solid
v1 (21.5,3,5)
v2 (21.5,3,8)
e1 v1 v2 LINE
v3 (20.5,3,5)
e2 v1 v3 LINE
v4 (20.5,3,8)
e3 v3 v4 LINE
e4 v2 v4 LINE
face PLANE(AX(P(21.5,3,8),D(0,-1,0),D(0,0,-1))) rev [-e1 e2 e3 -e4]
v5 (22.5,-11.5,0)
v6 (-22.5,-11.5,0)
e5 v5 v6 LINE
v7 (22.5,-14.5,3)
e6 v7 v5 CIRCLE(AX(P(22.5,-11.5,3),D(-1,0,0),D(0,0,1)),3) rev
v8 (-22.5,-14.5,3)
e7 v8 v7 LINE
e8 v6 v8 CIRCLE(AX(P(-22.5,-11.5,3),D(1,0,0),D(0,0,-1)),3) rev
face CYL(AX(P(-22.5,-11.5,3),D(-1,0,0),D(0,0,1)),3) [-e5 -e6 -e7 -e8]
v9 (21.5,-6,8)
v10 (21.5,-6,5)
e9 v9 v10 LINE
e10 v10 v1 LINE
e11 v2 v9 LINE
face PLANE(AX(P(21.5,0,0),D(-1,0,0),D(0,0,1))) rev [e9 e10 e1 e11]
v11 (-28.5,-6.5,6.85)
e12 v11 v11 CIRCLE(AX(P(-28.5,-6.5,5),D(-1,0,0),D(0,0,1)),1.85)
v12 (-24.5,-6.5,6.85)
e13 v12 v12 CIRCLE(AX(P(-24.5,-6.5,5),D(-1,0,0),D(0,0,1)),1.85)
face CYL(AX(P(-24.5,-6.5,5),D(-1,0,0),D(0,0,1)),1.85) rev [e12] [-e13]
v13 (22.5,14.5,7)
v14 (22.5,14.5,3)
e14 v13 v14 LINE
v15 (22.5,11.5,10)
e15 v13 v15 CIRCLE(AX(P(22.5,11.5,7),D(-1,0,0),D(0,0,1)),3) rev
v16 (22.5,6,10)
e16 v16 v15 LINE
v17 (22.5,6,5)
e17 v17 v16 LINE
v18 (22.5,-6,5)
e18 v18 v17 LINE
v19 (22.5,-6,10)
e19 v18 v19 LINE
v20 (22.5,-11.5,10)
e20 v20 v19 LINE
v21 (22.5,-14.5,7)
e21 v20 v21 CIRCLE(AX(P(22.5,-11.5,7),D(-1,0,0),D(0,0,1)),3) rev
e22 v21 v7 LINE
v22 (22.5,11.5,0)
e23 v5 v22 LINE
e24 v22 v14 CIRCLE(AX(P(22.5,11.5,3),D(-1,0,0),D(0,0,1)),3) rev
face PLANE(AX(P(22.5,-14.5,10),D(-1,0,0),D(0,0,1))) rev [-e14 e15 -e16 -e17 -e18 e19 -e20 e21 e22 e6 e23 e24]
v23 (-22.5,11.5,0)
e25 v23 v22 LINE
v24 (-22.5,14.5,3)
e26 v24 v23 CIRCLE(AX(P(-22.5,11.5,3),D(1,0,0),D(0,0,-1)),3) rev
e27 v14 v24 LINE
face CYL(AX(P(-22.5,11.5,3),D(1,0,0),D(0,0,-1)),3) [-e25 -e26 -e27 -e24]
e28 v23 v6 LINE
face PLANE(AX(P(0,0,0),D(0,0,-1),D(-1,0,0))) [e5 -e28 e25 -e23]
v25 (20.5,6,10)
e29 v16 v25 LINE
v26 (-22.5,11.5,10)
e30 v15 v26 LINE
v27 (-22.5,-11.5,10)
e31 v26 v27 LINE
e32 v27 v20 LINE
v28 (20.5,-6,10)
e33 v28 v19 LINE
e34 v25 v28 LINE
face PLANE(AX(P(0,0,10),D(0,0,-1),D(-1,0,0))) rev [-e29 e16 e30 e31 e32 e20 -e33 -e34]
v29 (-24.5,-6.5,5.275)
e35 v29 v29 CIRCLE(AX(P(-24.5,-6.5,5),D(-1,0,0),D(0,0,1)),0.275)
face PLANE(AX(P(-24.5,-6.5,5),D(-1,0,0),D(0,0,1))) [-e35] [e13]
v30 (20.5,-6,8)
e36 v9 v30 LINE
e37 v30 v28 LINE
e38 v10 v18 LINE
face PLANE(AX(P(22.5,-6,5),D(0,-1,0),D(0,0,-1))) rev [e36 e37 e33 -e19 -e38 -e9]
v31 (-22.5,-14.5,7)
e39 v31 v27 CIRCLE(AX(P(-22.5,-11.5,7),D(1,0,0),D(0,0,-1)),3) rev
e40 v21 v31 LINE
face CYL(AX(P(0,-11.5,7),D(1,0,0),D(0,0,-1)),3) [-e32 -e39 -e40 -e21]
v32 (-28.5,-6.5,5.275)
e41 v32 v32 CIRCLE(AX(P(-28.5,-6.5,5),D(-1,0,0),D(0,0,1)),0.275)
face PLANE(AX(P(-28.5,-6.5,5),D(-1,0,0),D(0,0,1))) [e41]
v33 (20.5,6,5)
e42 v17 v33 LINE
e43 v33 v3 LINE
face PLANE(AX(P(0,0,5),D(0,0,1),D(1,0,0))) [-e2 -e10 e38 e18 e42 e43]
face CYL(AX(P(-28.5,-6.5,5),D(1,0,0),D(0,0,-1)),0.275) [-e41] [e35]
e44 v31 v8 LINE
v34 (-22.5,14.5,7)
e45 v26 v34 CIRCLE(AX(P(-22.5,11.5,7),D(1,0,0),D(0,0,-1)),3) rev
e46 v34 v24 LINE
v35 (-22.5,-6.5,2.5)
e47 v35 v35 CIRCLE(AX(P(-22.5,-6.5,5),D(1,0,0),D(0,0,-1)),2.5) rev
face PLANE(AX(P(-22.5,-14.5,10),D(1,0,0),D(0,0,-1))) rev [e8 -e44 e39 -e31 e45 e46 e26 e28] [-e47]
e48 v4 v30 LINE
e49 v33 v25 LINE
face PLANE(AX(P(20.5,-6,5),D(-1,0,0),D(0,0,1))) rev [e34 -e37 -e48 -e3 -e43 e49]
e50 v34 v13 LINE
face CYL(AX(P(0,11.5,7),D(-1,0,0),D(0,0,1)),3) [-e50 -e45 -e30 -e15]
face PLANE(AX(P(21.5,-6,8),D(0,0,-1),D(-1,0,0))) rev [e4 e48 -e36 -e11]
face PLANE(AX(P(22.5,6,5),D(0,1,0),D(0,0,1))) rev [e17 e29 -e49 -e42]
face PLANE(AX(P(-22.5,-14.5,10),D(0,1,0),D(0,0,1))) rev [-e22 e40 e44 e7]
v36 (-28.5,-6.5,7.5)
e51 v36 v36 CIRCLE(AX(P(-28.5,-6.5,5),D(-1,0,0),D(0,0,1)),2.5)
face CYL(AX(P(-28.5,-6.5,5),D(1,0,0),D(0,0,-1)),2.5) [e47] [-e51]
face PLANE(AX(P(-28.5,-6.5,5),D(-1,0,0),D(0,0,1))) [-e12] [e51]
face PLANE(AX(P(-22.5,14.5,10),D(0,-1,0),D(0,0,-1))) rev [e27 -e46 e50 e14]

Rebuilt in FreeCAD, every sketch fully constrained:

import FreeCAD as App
import Part
import Sketcher

V = App.Vector
Q = App.Units.Quantity


def edges_at(feature, points):
    """Names of the edges that pass closest to the given points."""
    edges = feature.Shape.Edges
    near = lambda p: min(range(len(edges)), key=lambda i: edges[i].distToShape(Part.Vertex(*p))[0])
    return sorted({f"Edge{near(p) + 1}" for p in points})

doc = App.newDocument("Part")
body = doc.addObject("PartDesign::Body", "Body")

# Sketch on XY plane
sketch1 = body.newObject("Sketcher::SketchObject", "Sketch")
sketch1.AttachmentSupport = (doc.getObject("XY_Plane"), [""])
sketch1.MapMode = "FlatFace"
sketch1.addGeometry(Part.LineSegment(V(-22, 14, 0), V(-22, -14, 0)), False)
sketch1.addGeometry(Part.LineSegment(V(-22, -14, 0), V(22, -14, 0)), False)
sketch1.addGeometry(Part.LineSegment(V(22, -14, 0), V(22, 14, 0)), False)
sketch1.addGeometry(Part.LineSegment(V(22, 14, 0), V(-22, 14, 0)), False)
sketch1.addConstraint(Sketcher.Constraint("Coincident", 0, 2, 1, 1))
sketch1.addConstraint(Sketcher.Constraint("Coincident", 1, 2, 2, 1))
sketch1.addConstraint(Sketcher.Constraint("Coincident", 2, 2, 3, 1))
sketch1.addConstraint(Sketcher.Constraint("Coincident", 3, 2, 0, 1))
sketch1.addConstraint(Sketcher.Constraint("Vertical", 0))
sketch1.addConstraint(Sketcher.Constraint("Horizontal", 1))
sketch1.addConstraint(Sketcher.Constraint("Vertical", 2))
sketch1.addConstraint(Sketcher.Constraint("Horizontal", 3))
sketch1.addConstraint(Sketcher.Constraint("Symmetric", 0, 2, 2, 2, -1, 1))
sketch1.addConstraint(Sketcher.Constraint("DistanceX", 1, 1, 1, 2, Q("45 mm")))
sketch1.addConstraint(Sketcher.Constraint("DistanceY", 0, 2, 0, 1, Q("29 mm")))
pad1 = body.newObject("PartDesign::Pad", "Pad")
pad1.Profile = sketch1
pad1.Length = 10

# Sketch on XY plane
sketch2 = body.newObject("Sketcher::SketchObject", "Sketch001")
sketch2.AttachmentSupport = (doc.getObject("XY_Plane"), [""])
sketch2.MapMode = "FlatFace"
sketch2.AttachmentOffset = App.Placement(V(0, 0, 10), App.Rotation())
sketch2.addGeometry(Part.LineSegment(V(20.5, 6, 0), V(20.5, -6, 0)), False)
sketch2.addGeometry(Part.LineSegment(V(20.5, -6, 0), V(22.5, -6, 0)), False)
sketch2.addGeometry(Part.LineSegment(V(22.5, -6, 0), V(22.5, 6, 0)), False)
sketch2.addGeometry(Part.LineSegment(V(22.5, 6, 0), V(20.5, 6, 0)), False)
sketch2.addConstraint(Sketcher.Constraint("Coincident", 0, 2, 1, 1))
sketch2.addConstraint(Sketcher.Constraint("Coincident", 1, 2, 2, 1))
sketch2.addConstraint(Sketcher.Constraint("Coincident", 2, 2, 3, 1))
sketch2.addConstraint(Sketcher.Constraint("Coincident", 3, 2, 0, 1))
sketch2.addConstraint(Sketcher.Constraint("Vertical", 0))
sketch2.addConstraint(Sketcher.Constraint("Horizontal", 1))
sketch2.addConstraint(Sketcher.Constraint("Vertical", 2))
sketch2.addConstraint(Sketcher.Constraint("Horizontal", 3))
sketch2.addConstraint(Sketcher.Constraint("DistanceX", 1, 1, 1, 2, Q("2 mm")))
sketch2.addConstraint(Sketcher.Constraint("DistanceY", 0, 2, 0, 1, Q("12 mm")))
sketch2.addConstraint(Sketcher.Constraint("DistanceY", 0, 2, -1, 1, Q("6 mm")))
sketch2.addConstraint(Sketcher.Constraint("DistanceX", -1, 1, 0, 2, Q("20.5 mm")))
pocket1 = body.newObject("PartDesign::Pocket", "Pocket")
pocket1.Profile = sketch2
pocket1.Length = 5

# Sketch on YZ plane
sketch3 = body.newObject("Sketcher::SketchObject", "Sketch002")
sketch3.AttachmentSupport = (doc.getObject("YZ_Plane"), [""])
sketch3.MapMode = "FlatFace"
sketch3.AttachmentOffset = App.Placement(V(0, 0, 20.5), App.Rotation())
sketch3.addGeometry(Part.LineSegment(V(3, 8, 0), V(-6, 8, 0)), False)
sketch3.addGeometry(Part.LineSegment(V(-6, 8, 0), V(-6, 5, 0)), False)
sketch3.addGeometry(Part.LineSegment(V(-6, 5, 0), V(3, 5, 0)), False)
sketch3.addGeometry(Part.LineSegment(V(3, 5, 0), V(3, 8, 0)), False)
sketch3.addConstraint(Sketcher.Constraint("Coincident", 0, 2, 1, 1))
sketch3.addConstraint(Sketcher.Constraint("Coincident", 1, 2, 2, 1))
sketch3.addConstraint(Sketcher.Constraint("Coincident", 2, 2, 3, 1))
sketch3.addConstraint(Sketcher.Constraint("Coincident", 3, 2, 0, 1))
sketch3.addConstraint(Sketcher.Constraint("Horizontal", 0))
sketch3.addConstraint(Sketcher.Constraint("Vertical", 1))
sketch3.addConstraint(Sketcher.Constraint("Horizontal", 2))
sketch3.addConstraint(Sketcher.Constraint("Vertical", 3))
sketch3.addConstraint(Sketcher.Constraint("DistanceX", 0, 2, 0, 1, Q("9 mm")))
sketch3.addConstraint(Sketcher.Constraint("DistanceY", 1, 2, 1, 1, Q("3 mm")))
sketch3.addConstraint(Sketcher.Constraint("DistanceX", 0, 2, -1, 1, Q("6 mm")))
sketch3.addConstraint(Sketcher.Constraint("DistanceY", -1, 1, 0, 2, Q("8 mm")))
pad2 = body.newObject("PartDesign::Pad", "Pad001")
pad2.Profile = sketch3
pad2.Length = 1

# Sketch on YZ plane
sketch4 = body.newObject("Sketcher::SketchObject", "Sketch003")
sketch4.AttachmentSupport = (doc.getObject("YZ_Plane"), [""])
sketch4.MapMode = "FlatFace"
sketch4.AttachmentOffset = App.Placement(V(0, 0, -22.5), App.Rotation())
sketch4.addGeometry(Part.Circle(V(-6.5, 5, 0), V(0, 0, 1), 2.5), False)
sketch4.addConstraint(Sketcher.Constraint("Diameter", 0, Q("5 mm")))
sketch4.addConstraint(Sketcher.Constraint("DistanceY", -1, 1, 0, 3, Q("5 mm")))
sketch4.addConstraint(Sketcher.Constraint("DistanceX", 0, 3, -1, 1, Q("6.5 mm")))
pad3 = body.newObject("PartDesign::Pad", "Pad002")
pad3.Profile = sketch4
pad3.Length = 6
pad3.Reversed = True

# Sketch on YZ plane
sketch5 = body.newObject("Sketcher::SketchObject", "Sketch004")
sketch5.AttachmentSupport = (doc.getObject("YZ_Plane"), [""])
sketch5.MapMode = "FlatFace"
sketch5.AttachmentOffset = App.Placement(V(0, 0, -28.5), App.Rotation())
sketch5.addGeometry(Part.Circle(V(-6.5, 5, 0), V(0, 0, 1), 1.9), False)
sketch5.addConstraint(Sketcher.Constraint("Diameter", 0, Q("3.7 mm")))
sketch5.addConstraint(Sketcher.Constraint("DistanceY", -1, 1, 0, 3, Q("5 mm")))
sketch5.addConstraint(Sketcher.Constraint("DistanceX", 0, 3, -1, 1, Q("6.5 mm")))
pocket2 = body.newObject("PartDesign::Pocket", "Pocket001")
pocket2.Profile = sketch5
pocket2.Length = 4
pocket2.Reversed = True

# Sketch on YZ plane
sketch6 = body.newObject("Sketcher::SketchObject", "Sketch005")
sketch6.AttachmentSupport = (doc.getObject("YZ_Plane"), [""])
sketch6.MapMode = "FlatFace"
sketch6.AttachmentOffset = App.Placement(V(0, 0, -24.5), App.Rotation())
sketch6.addGeometry(Part.Circle(V(-6.5, 5, 0), V(0, 0, 1), 0.28), False)
sketch6.addConstraint(Sketcher.Constraint("Diameter", 0, Q("0.55 mm")))
sketch6.addConstraint(Sketcher.Constraint("DistanceY", -1, 1, 0, 3, Q("5 mm")))
sketch6.addConstraint(Sketcher.Constraint("DistanceX", 0, 3, -1, 1, Q("6.5 mm")))
pad4 = body.newObject("PartDesign::Pad", "Pad003")
pad4.Profile = sketch6
pad4.Length = 4
pad4.Reversed = True
doc.recompute()

fillet = body.newObject("PartDesign::Fillet", "Fillet")
fillet.Base = (pad4, edges_at(pad4, [(0, 14.5, 0)]))
fillet.Radius = 3
doc.recompute()

fillet2 = body.newObject("PartDesign::Fillet", "Fillet001")
fillet2.Base = (fillet, edges_at(fillet, [(0, 14.5, 10)]))
fillet2.Radius = 3
doc.recompute()

fillet3 = body.newObject("PartDesign::Fillet", "Fillet002")
fillet3.Base = (fillet2, edges_at(fillet2, [(0, -14.5, 0)]))
fillet3.Radius = 3
doc.recompute()

fillet4 = body.newObject("PartDesign::Fillet", "Fillet003")
fillet4.Base = (fillet3, edges_at(fillet3, [(0, -14.5, 10)]))
fillet4.Radius = 3

doc.recompute()
